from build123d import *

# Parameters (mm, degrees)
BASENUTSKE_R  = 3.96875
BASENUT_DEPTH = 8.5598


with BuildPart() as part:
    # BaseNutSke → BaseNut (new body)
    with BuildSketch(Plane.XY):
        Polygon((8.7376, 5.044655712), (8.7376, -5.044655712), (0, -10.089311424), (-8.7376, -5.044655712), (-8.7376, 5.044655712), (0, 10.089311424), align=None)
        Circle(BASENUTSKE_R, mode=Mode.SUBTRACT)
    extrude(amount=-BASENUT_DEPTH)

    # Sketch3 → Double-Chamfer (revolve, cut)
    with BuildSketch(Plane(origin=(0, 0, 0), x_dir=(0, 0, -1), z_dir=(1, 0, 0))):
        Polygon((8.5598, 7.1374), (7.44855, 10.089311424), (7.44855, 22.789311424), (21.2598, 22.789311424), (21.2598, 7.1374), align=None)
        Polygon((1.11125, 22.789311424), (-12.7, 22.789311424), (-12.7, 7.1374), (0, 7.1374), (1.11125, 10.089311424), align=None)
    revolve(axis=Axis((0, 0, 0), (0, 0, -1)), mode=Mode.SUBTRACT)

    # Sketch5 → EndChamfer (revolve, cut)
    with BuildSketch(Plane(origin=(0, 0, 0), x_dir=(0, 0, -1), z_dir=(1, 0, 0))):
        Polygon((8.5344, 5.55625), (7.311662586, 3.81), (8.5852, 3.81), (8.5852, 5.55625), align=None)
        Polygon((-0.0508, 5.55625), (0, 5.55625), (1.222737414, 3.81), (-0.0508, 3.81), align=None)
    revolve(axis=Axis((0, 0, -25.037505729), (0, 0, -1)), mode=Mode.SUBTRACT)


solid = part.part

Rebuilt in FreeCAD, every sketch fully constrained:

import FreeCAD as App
import Part
import Sketcher
Q = App.Units.Quantity

doc = App.newDocument("Part")
body = doc.addObject("PartDesign::Body", "Body")

sketch1 = doc.addObject("Sketcher::SketchObject", "Sketch")
body.addObject(sketch1)
sketch1.AttachmentSupport = (doc.XY_Plane, [""])
sketch1.MapMode = "FlatFace"
sketch1.addGeometry(Part.LineSegment(App.Vector(8.7376, -5.044656, 0), App.Vector(8.7376, 5.044656, 0)), False)
sketch1.addGeometry(Part.LineSegment(App.Vector(8.7376, 5.044656, 0), App.Vector(0, 10.089311, 0)), False)
sketch1.addGeometry(Part.LineSegment(App.Vector(0, 10.089311, 0), App.Vector(-8.7376, 5.044656, 0)), False)
sketch1.addGeometry(Part.LineSegment(App.Vector(-8.7376, 5.044656, 0), App.Vector(-8.7376, -5.044656, 0)), False)
sketch1.addGeometry(Part.LineSegment(App.Vector(-8.7376, -5.044656, 0), App.Vector(0, -10.089311, 0)), False)
sketch1.addGeometry(Part.LineSegment(App.Vector(0, -10.089311, 0), App.Vector(8.7376, -5.044656, 0)), False)
sketch1.addGeometry(Part.Circle(App.Vector(0, 0, 0), App.Vector(0, 0, 1), 3.96875), False)
sketch1.addConstraint(Sketcher.Constraint("Coincident", 0, 2, 1, 1))
sketch1.addConstraint(Sketcher.Constraint("Coincident", 1, 2, 2, 1))
sketch1.addConstraint(Sketcher.Constraint("Coincident", 2, 2, 3, 1))
sketch1.addConstraint(Sketcher.Constraint("Coincident", 3, 2, 4, 1))
sketch1.addConstraint(Sketcher.Constraint("Coincident", 4, 2, 5, 1))
sketch1.addConstraint(Sketcher.Constraint("Coincident", 5, 2, 0, 1))
sketch1.addConstraint(Sketcher.Constraint("Vertical", 0))
sketch1.addConstraint(Sketcher.Constraint("Vertical", 3))
sketch1.addConstraint(Sketcher.Constraint("Coincident", 6, 3, -1, 1))
sketch1.addConstraint(Sketcher.Constraint("Symmetric", 0, 2, 3, 2, -1, 1))
sketch1.addConstraint(Sketcher.Constraint("Symmetric", 1, 2, 4, 2, -1, 1))
sketch1.addConstraint(Sketcher.Constraint("PointOnObject", 1, 2, -2))
sketch1.addConstraint(Sketcher.Constraint("Parallel", 2, 5))
sketch1.addConstraint(Sketcher.Constraint("Horizontal", 0, 2, 2, 2))
sketch1.addConstraint(Sketcher.Constraint("Diameter", 6, Q("0.3125 in")))
sketch1.addConstraint(Sketcher.Constraint("Angle", 1, Q("150 deg")))
sketch1.addConstraint(Sketcher.Constraint("DistanceX", -1, 1, 0, 2, Q("0.344 in")))
sketch1.addConstraint(Sketcher.Constraint("DistanceY", 0, 1, 0, 2, 10.089311))
pad1 = doc.addObject("PartDesign::Pad", "Pad")
body.addObject(pad1)
pad1.Profile = sketch1
pad1.Length = Q("0.337 in")
pad1.Reversed = True

sketch2 = doc.addObject("Sketcher::SketchObject", "Sketch001")
body.addObject(sketch2)
sketch2.AttachmentSupport = (doc.YZ_Plane, [""])
sketch2.MapMode = "FlatFace"
sketch2.addGeometry(Part.LineSegment(App.Vector(10.089311, -7.44855, 0), App.Vector(7.1374, -8.5598, 0)), False)
sketch2.addGeometry(Part.LineSegment(App.Vector(7.1374, -8.5598, 0), App.Vector(7.1374, -21.2598, 0)), False)
sketch2.addGeometry(Part.LineSegment(App.Vector(7.1374, -21.2598, 0), App.Vector(22.789311, -21.2598, 0)), False)
sketch2.addGeometry(Part.LineSegment(App.Vector(22.789311, -21.2598, 0), App.Vector(22.789311, -7.44855, 0)), False)
sketch2.addGeometry(Part.LineSegment(App.Vector(22.789311, -7.44855, 0), App.Vector(10.089311, -7.44855, 0)), False)
sketch2.addGeometry(Part.LineSegment(App.Vector(22.789311, -1.11125, 0), App.Vector(22.789311, 12.7, 0)), False)
sketch2.addGeometry(Part.LineSegment(App.Vector(22.789311, 12.7, 0), App.Vector(7.1374, 12.7, 0)), False)
sketch2.addGeometry(Part.LineSegment(App.Vector(7.1374, 12.7, 0), App.Vector(7.1374, 0, 0)), False)
sketch2.addGeometry(Part.LineSegment(App.Vector(7.1374, 0, 0), App.Vector(10.089311, -1.11125, 0)), False)
sketch2.addGeometry(Part.LineSegment(App.Vector(10.089311, -1.11125, 0), App.Vector(22.789311, -1.11125, 0)), False)
sketch2.addConstraint(Sketcher.Constraint("Coincident", 0, 2, 1, 1))
sketch2.addConstraint(Sketcher.Constraint("Coincident", 1, 2, 2, 1))
sketch2.addConstraint(Sketcher.Constraint("Coincident", 2, 2, 3, 1))
sketch2.addConstraint(Sketcher.Constraint("Coincident", 3, 2, 4, 1))
sketch2.addConstraint(Sketcher.Constraint("Coincident", 4, 2, 0, 1))
sketch2.addConstraint(Sketcher.Constraint("Coincident", 5, 2, 6, 1))
sketch2.addConstraint(Sketcher.Constraint("Coincident", 6, 2, 7, 1))
sketch2.addConstraint(Sketcher.Constraint("Coincident", 7, 2, 8, 1))
sketch2.addConstraint(Sketcher.Constraint("Coincident", 8, 2, 9, 1))
sketch2.addConstraint(Sketcher.Constraint("Coincident", 9, 2, 5, 1))
sketch2.addConstraint(Sketcher.Constraint("Vertical", 1))
sketch2.addConstraint(Sketcher.Constraint("Horizontal", 2))
sketch2.addConstraint(Sketcher.Constraint("Vertical", 3))
sketch2.addConstraint(Sketcher.Constraint("Horizontal", 4))
sketch2.addConstraint(Sketcher.Constraint("Vertical", 5))
sketch2.addConstraint(Sketcher.Constraint("Horizontal", 6))
sketch2.addConstraint(Sketcher.Constraint("Vertical", 7))
sketch2.addConstraint(Sketcher.Constraint("Horizontal", 9))
sketch2.addConstraint(Sketcher.Constraint("PointOnObject", 7, 2, -1))
sketch2.addConstraint(Sketcher.Constraint("Vertical", 3, 2, 5, 2))
sketch2.addConstraint(Sketcher.Constraint("Vertical", 1, 2, 6, 2))
sketch2.addConstraint(Sketcher.Constraint("Vertical", 4, 2, 8, 2))
sketch2.addConstraint(Sketcher.Constraint("Equal", 9, 1))
sketch2.addConstraint(Sketcher.Constraint("Equal", 3, 5))
sketch2.addConstraint(Sketcher.Constraint("Equal", 1, 7))
sketch2.addConstraint(Sketcher.Constraint("DistanceX", 4, 2, 4, 1, Q("0.5 in")))
sketch2.addConstraint(Sketcher.Constraint("DistanceX", -1, 1, 0, 2, Q("0.281 in")))
sketch2.addConstraint(Sketcher.Constraint("DistanceY", 0, 2, -1, 1, Q("0.337 in")))
sketch2.addConstraint(Sketcher.Constraint("DistanceY", 4, 2, 8, 2, Q("0.2495 in")))
sketch2.addConstraint(Sketcher.Constraint("DistanceX", 2, 1, 2, 2, 15.651911))
groove = doc.addObject("PartDesign::Groove", "Groove")
body.addObject(groove)
groove.Profile = sketch2
groove.ReferenceAxis = (sketch2, ["V_Axis"])
groove.Angle = 360

sketch3 = doc.addObject("Sketcher::SketchObject", "Sketch002")
body.addObject(sketch3)
sketch3.AttachmentSupport = (doc.YZ_Plane, [""])
sketch3.MapMode = "FlatFace"
sketch3.addGeometry(Part.LineSegment(App.Vector(5.55625, -8.5344, 0), App.Vector(3.81, -7.311663, 0)), False)
sketch3.addGeometry(Part.LineSegment(App.Vector(3.81, -7.311663, 0), App.Vector(3.81, -8.5852, 0)), False)
sketch3.addGeometry(Part.LineSegment(App.Vector(3.81, -8.5852, 0), App.Vector(5.55625, -8.5852, 0)), False)
sketch3.addGeometry(Part.LineSegment(App.Vector(5.55625, -8.5852, 0), App.Vector(5.55625, -8.5344, 0)), False)
sketch3.addGeometry(Part.LineSegment(App.Vector(5.55625, 0, 0), App.Vector(5.55625, 0.0508, 0)), False)
sketch3.addGeometry(Part.LineSegment(App.Vector(5.55625, 0.0508, 0), App.Vector(3.81, 0.0508, 0)), False)
sketch3.addGeometry(Part.LineSegment(App.Vector(3.81, 0.0508, 0), App.Vector(3.81, -1.222737, 0)), False)
sketch3.addGeometry(Part.LineSegment(App.Vector(3.81, -1.222737, 0), App.Vector(5.55625, 0, 0)), False)
sketch3.addConstraint(Sketcher.Constraint("Coincident", 0, 2, 1, 1))
sketch3.addConstraint(Sketcher.Constraint("Coincident", 1, 2, 2, 1))
sketch3.addConstraint(Sketcher.Constraint("Coincident", 2, 2, 3, 1))
sketch3.addConstraint(Sketcher.Constraint("Coincident", 3, 2, 0, 1))
sketch3.addConstraint(Sketcher.Constraint("Coincident", 4, 2, 5, 1))
sketch3.addConstraint(Sketcher.Constraint("Coincident", 5, 2, 6, 1))
sketch3.addConstraint(Sketcher.Constraint("Coincident", 6, 2, 7, 1))
sketch3.addConstraint(Sketcher.Constraint("Coincident", 7, 2, 4, 1))
sketch3.addConstraint(Sketcher.Constraint("Vertical", 1))
sketch3.addConstraint(Sketcher.Constraint("Horizontal", 2))
sketch3.addConstraint(Sketcher.Constraint("Vertical", 3))
sketch3.addConstraint(Sketcher.Constraint("Vertical", 4))
sketch3.addConstraint(Sketcher.Constraint("Horizontal", 5))
sketch3.addConstraint(Sketcher.Constraint("Vertical", 6))
sketch3.addConstraint(Sketcher.Constraint("PointOnObject", 7, 2, -1))
sketch3.addConstraint(Sketcher.Constraint("Vertical", 3, 2, 4, 2))
sketch3.addConstraint(Sketcher.Constraint("Vertical", 1, 2, 5, 2))
sketch3.addConstraint(Sketcher.Constraint("Equal", 3, 4))
sketch3.addConstraint(Sketcher.Constraint("Equal", 1, 6))
sketch3.addConstraint(Sketcher.Constraint("Angle", 0, Q("145 deg")))
sketch3.addConstraint(Sketcher.Constraint("DistanceY", 3, 1, 3, 2, Q("0.002 in")))
sketch3.addConstraint(Sketcher.Constraint("DistanceX", -1, 1, 0, 2, Q("0.15 in")))
sketch3.addConstraint(Sketcher.Constraint("DistanceY", 2, 2, 4, 2, Q("0.34 in")))
sketch3.addConstraint(Sketcher.Constraint("DistanceX", -1, 1, 2, 2, Q("0.21875 in")))
groove2 = doc.addObject("PartDesign::Groove", "Groove001")
body.addObject(groove2)
groove2.Profile = sketch3
groove2.ReferenceAxis = (sketch3, ["V_Axis"])
groove2.Angle = 360

doc.recompute()
